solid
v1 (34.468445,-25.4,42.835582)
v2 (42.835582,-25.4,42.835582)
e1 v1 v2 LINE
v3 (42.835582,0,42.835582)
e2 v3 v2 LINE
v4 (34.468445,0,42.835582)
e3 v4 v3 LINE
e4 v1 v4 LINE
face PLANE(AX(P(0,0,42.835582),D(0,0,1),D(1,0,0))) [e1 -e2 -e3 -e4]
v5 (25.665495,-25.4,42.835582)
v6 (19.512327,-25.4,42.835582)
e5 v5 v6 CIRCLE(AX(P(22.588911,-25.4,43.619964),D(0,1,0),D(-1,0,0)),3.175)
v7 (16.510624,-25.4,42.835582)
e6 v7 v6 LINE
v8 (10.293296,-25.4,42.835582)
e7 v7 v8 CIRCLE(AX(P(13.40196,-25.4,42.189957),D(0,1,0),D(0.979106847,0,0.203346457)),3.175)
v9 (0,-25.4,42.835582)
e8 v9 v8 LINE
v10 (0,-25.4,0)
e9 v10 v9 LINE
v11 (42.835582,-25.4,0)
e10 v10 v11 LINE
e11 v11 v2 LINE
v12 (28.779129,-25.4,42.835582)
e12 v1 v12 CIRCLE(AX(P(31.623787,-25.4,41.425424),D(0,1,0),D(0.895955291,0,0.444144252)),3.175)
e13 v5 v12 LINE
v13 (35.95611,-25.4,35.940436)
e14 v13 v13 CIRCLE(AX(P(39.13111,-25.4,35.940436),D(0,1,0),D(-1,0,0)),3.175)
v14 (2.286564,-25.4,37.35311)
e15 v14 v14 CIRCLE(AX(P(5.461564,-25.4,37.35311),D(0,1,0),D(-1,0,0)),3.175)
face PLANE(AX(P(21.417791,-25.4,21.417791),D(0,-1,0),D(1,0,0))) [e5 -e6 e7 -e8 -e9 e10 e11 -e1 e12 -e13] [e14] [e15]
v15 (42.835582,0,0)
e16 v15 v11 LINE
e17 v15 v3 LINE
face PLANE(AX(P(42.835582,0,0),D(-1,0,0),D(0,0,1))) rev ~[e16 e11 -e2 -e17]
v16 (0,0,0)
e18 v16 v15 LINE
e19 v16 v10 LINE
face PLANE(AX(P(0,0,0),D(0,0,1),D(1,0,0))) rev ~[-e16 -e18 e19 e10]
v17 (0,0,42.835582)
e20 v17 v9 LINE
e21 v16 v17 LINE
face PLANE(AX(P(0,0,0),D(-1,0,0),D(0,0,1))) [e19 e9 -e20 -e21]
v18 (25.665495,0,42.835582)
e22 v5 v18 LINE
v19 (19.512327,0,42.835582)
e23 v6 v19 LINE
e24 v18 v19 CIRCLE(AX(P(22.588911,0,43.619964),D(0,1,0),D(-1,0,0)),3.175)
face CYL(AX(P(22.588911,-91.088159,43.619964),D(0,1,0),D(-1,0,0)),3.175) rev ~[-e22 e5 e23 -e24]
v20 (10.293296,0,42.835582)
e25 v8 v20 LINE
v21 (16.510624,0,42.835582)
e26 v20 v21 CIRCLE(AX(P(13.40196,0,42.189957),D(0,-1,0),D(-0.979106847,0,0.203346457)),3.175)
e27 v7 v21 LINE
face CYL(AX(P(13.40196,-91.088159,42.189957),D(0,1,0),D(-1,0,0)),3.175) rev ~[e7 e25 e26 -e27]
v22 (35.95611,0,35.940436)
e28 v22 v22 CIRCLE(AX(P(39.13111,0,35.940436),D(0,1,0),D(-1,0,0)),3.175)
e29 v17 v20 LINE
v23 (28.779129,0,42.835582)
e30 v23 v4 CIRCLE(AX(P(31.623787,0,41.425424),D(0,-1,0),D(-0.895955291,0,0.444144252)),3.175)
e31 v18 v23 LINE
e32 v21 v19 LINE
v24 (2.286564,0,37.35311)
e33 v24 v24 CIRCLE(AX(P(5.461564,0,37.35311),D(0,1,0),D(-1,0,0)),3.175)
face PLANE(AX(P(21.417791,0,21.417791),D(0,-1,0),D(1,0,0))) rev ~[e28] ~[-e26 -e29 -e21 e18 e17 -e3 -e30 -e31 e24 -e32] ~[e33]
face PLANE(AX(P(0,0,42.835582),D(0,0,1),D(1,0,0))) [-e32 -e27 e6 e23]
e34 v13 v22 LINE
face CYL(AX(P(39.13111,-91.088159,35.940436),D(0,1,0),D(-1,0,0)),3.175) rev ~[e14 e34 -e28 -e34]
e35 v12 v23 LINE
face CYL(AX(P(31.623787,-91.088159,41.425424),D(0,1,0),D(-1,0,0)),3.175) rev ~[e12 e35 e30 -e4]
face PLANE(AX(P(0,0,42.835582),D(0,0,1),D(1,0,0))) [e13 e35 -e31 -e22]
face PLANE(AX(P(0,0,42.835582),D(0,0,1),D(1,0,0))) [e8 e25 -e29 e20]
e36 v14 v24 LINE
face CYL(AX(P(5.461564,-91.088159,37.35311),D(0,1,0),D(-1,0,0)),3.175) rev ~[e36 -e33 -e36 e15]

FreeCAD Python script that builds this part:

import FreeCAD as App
import Part
import Sketcher
from FreeCAD import Vector
Q = App.Units.Quantity


def add_polygon(sketch, points):
    """Adds a closed chain of lines whose ends are joined by coincident constraints."""
    first, n = sketch.GeometryCount, len(points)
    for a, b in zip(points, points[1:] + points[:1]):
        sketch.addGeometry(Part.LineSegment(App.Vector(*a, 0), App.Vector(*b, 0)), False)
    for i in range(n):
        sketch.addConstraint(Sketcher.Constraint("Coincident", first + i, 2, first + (i + 1) % n, 1))

doc = App.newDocument("Part")
body = doc.addObject("PartDesign::Body", "Body")

# Sketch on XZ plane
sketch1 = body.newObject("Sketcher::SketchObject", "Sketch")
sketch1.AttachmentSupport = (doc.getObject("XZ_Plane"), [""])
sketch1.MapMode = "FlatFace"
add_polygon(sketch1, [(0, 43), (0, 0), (43, 0), (43, 43)])  # lines 0-3
sketch1.addConstraint([
    Sketcher.Constraint("Vertical", 0),
    Sketcher.Constraint("Horizontal", 1),
    Sketcher.Constraint("Vertical", 2),
    Sketcher.Constraint("Horizontal", 3),
    Sketcher.Constraint("Coincident", 0, 2, -1, 1),
    Sketcher.Constraint("Equal", 3, 0),
    Sketcher.Constraint("DistanceX", 1, 1, 1, 2, 42.835582),
])
pad1 = body.newObject("PartDesign::Pad", "Pad")
pad1.Profile = sketch1
pad1.Length = Q("1 in")

# Sketch on XZ plane
sketch2 = body.newObject("Sketcher::SketchObject", "Sketch001")
sketch2.AttachmentSupport = (doc.getObject("XZ_Plane"), [""])
sketch2.MapMode = "FlatFace"
sketch2.AttachmentOffset = App.Placement(Vector(0, 0, 1 * 25.4), App.Rotation())
sketch2.addGeometry([
    Part.Circle(Vector(5.5, 37.4, 0), Vector(0, 0, 1), 3.2),  # 0
    Part.Circle(Vector(39.1, 35.9, 0), Vector(0, 0, 1), 3.2),  # 1
    Part.Circle(Vector(31.6, 41.4, 0), Vector(0, 0, 1), 3.2),  # 2
    Part.Circle(Vector(22.6, 43.6, 0), Vector(0, 0, 1), 3.2),  # 3
    Part.Circle(Vector(13.4, 42.2, 0), Vector(0, 0, 1), 3.2),  # 4
], False)
sketch2.addConstraint([
    Sketcher.Constraint("Equal", 0, 1),
    Sketcher.Constraint("Equal", 1, 2),
    Sketcher.Constraint("Equal", 2, 3),
    Sketcher.Constraint("Equal", 3, 4),
    Sketcher.Constraint("Diameter", 0, Q("0.25 in")),
    Sketcher.Constraint("DistanceX", 3, 3, 1, 3, 16.542199),
    Sketcher.Constraint("DistanceY", -1, 1, 0, 3, 37.35311),
    Sketcher.Constraint("DistanceX", -1, 1, 1, 3, 39.13111),
    Sketcher.Constraint("DistanceX", -1, 1, 4, 3, 13.40196),
    Sketcher.Constraint("DistanceY", 1, 3, 2, 3, 5.484988),
    Sketcher.Constraint("DistanceY", 2, 3, 3, 3, 2.19454),
    Sketcher.Constraint("DistanceY", 1, 3, 4, 3, 6.249521),
    Sketcher.Constraint("DistanceX", -1, 1, 0, 3, 5.461564),
    Sketcher.Constraint("DistanceY", -1, 1, 1, 3, 35.940436),
    Sketcher.Constraint("DistanceX", -1, 1, 2, 3, 31.623787),
])
doc.recompute()
hole = body.newObject("PartDesign::Hole", "Hole")
hole.Profile = sketch2
hole.ThreadType = "None"
hole.Diameter = Q("0.25 in")
hole.DepthType = "ThroughAll"

doc.recompute()
